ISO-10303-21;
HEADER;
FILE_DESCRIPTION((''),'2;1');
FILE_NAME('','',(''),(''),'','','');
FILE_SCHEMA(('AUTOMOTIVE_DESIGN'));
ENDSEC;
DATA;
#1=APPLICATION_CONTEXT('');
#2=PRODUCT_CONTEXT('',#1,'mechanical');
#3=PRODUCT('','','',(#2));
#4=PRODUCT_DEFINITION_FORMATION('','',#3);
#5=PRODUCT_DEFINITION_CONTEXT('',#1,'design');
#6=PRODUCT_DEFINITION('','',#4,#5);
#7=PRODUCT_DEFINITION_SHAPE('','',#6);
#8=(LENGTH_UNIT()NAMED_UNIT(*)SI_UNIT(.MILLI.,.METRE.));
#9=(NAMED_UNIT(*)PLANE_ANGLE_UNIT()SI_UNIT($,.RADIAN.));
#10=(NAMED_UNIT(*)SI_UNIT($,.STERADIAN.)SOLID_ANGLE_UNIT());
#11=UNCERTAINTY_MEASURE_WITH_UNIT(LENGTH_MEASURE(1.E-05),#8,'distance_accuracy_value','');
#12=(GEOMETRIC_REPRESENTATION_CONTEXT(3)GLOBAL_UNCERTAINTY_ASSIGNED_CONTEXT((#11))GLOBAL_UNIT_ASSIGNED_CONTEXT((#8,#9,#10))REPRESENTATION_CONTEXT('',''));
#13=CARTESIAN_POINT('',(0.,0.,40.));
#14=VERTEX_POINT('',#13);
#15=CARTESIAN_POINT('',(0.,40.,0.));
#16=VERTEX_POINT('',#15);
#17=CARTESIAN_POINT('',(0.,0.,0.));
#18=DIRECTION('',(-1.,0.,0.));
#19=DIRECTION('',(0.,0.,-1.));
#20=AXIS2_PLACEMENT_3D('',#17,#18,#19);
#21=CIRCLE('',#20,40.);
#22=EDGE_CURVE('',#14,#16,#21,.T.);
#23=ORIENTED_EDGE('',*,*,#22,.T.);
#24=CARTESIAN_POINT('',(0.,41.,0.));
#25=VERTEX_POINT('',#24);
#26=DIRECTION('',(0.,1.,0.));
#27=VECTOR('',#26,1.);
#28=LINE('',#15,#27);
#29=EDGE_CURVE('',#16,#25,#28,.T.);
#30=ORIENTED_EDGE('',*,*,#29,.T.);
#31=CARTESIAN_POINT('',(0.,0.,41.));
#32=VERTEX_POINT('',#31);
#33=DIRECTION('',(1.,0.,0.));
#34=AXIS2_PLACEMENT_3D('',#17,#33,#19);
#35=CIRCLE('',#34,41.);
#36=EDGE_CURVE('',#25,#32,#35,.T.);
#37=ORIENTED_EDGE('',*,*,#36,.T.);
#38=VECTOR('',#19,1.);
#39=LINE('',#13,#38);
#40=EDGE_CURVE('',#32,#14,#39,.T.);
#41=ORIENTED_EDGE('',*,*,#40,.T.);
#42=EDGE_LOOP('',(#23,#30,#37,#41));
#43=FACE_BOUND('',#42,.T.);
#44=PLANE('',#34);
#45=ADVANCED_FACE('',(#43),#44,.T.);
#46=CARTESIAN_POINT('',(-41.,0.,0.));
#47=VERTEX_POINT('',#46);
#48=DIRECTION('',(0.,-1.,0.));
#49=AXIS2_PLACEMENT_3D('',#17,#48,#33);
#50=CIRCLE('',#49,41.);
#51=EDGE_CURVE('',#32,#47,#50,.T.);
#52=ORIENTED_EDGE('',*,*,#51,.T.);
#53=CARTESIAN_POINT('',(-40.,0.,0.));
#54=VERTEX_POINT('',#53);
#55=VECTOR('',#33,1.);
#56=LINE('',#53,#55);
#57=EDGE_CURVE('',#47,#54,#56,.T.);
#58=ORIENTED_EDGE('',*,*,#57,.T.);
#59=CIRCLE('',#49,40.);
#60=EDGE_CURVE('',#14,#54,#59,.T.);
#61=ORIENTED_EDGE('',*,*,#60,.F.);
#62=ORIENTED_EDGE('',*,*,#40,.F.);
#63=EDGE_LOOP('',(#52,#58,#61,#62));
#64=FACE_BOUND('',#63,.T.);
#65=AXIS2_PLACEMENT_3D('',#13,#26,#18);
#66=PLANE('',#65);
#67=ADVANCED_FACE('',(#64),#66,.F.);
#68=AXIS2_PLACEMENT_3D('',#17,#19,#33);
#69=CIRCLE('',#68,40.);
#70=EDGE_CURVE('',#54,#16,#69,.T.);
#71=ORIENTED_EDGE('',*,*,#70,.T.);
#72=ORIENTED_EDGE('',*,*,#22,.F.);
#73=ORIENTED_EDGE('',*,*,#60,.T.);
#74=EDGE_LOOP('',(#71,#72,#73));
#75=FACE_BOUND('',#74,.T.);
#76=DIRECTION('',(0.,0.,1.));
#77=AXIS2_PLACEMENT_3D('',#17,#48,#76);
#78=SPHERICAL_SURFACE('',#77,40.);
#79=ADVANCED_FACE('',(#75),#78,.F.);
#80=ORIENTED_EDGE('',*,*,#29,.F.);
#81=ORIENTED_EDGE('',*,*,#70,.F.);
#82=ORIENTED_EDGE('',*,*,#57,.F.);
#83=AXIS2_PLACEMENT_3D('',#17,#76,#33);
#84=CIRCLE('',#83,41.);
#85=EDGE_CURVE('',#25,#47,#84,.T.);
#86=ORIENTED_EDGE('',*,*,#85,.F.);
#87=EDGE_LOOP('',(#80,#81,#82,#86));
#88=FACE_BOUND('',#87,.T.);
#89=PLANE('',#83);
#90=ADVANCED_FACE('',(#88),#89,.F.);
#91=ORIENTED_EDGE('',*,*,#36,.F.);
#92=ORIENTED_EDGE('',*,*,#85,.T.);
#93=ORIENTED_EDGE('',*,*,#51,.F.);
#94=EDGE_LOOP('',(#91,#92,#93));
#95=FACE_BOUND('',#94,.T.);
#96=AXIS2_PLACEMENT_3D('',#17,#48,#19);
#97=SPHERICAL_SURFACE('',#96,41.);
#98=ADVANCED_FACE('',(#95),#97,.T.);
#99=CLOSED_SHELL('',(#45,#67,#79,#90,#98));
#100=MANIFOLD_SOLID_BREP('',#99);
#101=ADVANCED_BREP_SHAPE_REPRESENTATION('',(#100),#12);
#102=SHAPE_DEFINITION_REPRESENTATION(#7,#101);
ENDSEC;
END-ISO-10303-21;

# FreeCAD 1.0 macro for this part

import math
import FreeCAD as App
import Part
import Sketcher
from FreeCAD import Vector
Q = App.Units.Quantity

doc = App.newDocument("Part")
body = doc.addObject("PartDesign::Body", "Body")

sketch1 = doc.addObject("Sketcher::SketchObject", "Sketch")
body.addObject(sketch1)
sketch1.AttachmentSupport = (doc.XY_Plane, [""])
sketch1.MapMode = "FlatFace"
sketch1.addGeometry([
    Part.LineSegment(Vector(0, 40, 0), Vector(0, 41, 0)),
    Part.ArcOfCircle(Part.Circle(Vector(0, 0, 0), Vector(0, 0, 1), 41), math.radians(90), math.radians(180)),
    Part.LineSegment(Vector(-41, 0, 0), Vector(-40, 0, 0)),
    Part.ArcOfCircle(Part.Circle(Vector(0, 0, 0), Vector(0, 0, 1), 40), math.radians(90), math.radians(180)),
], False)
sketch1.addConstraint([
    Sketcher.Constraint("Coincident", 0, 2, 1, 1),
    Sketcher.Constraint("Coincident", 1, 2, 2, 1),
    Sketcher.Constraint("Coincident", 2, 2, 3, 2),
    Sketcher.Constraint("Coincident", 3, 1, 0, 1),
    Sketcher.Constraint("Vertical", 0),
    Sketcher.Constraint("Horizontal", 2),
    Sketcher.Constraint("Coincident", 1, 3, -1, 1),
    Sketcher.Constraint("Coincident", 3, 3, -1, 1),
    Sketcher.Constraint("PointOnObject", 0, 2, -2),
    Sketcher.Constraint("PointOnObject", 1, 2, -1),
    Sketcher.Constraint("Radius", 1, Q("41 mm")),
    Sketcher.Constraint("Radius", 3, Q("40 mm")),
])
revolution = doc.addObject("PartDesign::Revolution", "Revolution")
body.addObject(revolution)
revolution.Profile = sketch1
revolution.ReferenceAxis = (sketch1, ["V_Axis"])
revolution.Angle = 90

doc.recompute()
